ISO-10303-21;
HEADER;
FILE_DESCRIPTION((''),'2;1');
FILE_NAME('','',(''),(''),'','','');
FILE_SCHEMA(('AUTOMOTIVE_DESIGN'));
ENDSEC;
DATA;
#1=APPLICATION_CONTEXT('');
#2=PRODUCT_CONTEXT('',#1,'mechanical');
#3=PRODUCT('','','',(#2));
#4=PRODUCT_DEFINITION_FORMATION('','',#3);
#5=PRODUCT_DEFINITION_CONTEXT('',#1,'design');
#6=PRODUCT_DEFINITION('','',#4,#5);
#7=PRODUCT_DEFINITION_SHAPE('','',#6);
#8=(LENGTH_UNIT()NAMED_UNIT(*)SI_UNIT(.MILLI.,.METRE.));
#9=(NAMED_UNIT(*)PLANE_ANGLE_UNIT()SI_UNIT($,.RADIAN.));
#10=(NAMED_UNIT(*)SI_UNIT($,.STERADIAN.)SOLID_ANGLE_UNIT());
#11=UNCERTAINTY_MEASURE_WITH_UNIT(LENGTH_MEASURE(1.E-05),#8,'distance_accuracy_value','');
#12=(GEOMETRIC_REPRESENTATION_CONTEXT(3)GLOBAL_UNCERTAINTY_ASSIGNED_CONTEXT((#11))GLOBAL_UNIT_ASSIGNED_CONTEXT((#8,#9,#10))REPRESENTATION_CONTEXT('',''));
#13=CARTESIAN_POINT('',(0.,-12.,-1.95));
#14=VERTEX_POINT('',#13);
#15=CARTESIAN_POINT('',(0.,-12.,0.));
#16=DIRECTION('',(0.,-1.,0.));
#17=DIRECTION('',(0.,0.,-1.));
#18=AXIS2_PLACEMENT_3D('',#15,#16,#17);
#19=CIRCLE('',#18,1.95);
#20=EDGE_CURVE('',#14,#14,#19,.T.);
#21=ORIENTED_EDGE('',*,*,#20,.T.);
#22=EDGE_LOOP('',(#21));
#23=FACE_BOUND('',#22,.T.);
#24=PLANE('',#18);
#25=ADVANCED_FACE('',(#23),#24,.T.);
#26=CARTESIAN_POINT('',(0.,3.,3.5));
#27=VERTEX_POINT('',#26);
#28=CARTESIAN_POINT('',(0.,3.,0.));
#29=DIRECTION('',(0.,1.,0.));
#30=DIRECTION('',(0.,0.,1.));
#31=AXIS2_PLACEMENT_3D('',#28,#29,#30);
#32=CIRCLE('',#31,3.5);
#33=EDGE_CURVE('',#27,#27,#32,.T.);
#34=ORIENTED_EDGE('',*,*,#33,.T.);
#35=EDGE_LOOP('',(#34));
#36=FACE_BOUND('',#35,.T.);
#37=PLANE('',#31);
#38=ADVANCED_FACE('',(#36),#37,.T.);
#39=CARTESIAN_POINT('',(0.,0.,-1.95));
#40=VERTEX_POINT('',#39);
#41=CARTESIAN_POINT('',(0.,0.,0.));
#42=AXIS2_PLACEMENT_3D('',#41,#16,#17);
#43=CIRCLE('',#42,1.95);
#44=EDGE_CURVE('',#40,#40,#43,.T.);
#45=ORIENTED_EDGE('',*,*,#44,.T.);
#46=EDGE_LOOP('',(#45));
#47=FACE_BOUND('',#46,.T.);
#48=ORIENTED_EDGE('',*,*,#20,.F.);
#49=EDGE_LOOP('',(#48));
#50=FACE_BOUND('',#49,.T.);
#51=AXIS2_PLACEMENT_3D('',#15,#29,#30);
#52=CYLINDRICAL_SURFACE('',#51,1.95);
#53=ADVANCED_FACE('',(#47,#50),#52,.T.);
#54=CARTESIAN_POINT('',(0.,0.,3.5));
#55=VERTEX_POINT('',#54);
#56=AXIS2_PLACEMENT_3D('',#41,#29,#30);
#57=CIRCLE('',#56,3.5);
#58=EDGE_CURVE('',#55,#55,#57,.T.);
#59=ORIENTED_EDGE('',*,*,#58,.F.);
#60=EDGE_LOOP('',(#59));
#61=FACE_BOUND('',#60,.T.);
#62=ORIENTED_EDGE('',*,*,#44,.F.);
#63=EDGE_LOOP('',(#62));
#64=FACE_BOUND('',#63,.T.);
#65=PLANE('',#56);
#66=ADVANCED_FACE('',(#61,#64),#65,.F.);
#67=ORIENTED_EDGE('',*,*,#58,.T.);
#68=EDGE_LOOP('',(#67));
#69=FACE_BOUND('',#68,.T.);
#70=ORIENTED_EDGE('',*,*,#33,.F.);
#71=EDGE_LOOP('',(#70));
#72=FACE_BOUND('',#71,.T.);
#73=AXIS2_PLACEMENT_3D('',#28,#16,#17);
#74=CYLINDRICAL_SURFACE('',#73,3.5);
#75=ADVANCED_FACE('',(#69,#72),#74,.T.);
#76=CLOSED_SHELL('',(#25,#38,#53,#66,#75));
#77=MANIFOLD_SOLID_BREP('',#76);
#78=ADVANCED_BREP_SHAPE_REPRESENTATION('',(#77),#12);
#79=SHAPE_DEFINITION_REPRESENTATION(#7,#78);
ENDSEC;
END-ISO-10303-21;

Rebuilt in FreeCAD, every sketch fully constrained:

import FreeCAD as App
import Part
import Sketcher

V = App.Vector

doc = App.newDocument("Part")
body = doc.addObject("PartDesign::Body", "Body")

sketch1 = body.newObject("Sketcher::SketchObject", "Sketch")
sketch1.AttachmentSupport = (doc.getObject("XZ_Plane"), [""])
sketch1.MapMode = "FlatFace"
sketch1.addGeometry(Part.Circle(V(0, 0, 0), V(0, 0, 1), 3.5), False)
sketch1.addConstraint([
    Sketcher.Constraint("Coincident", 0, 3, -1, 1),
    Sketcher.Constraint("Diameter", 0, 7.0),
])
pad1 = body.newObject("PartDesign::Pad", "Pad")
pad1.Profile = sketch1
pad1.Length = 3
pad1.Reversed = True

sketch2 = body.newObject("Sketcher::SketchObject", "Sketch001")
sketch2.AttachmentSupport = (doc.getObject("XZ_Plane"), [""])
sketch2.MapMode = "FlatFace"
sketch2.addGeometry(Part.Circle(V(0, 0, 0), V(0, 0, 1), 1.9), False)
sketch2.addConstraint([
    Sketcher.Constraint("Coincident", 0, 3, -1, 1),
    Sketcher.Constraint("Diameter", 0, 3.9),
])
pad2 = body.newObject("PartDesign::Pad", "Pad001")
pad2.Profile = sketch2
pad2.Length = 12

doc.recompute()
